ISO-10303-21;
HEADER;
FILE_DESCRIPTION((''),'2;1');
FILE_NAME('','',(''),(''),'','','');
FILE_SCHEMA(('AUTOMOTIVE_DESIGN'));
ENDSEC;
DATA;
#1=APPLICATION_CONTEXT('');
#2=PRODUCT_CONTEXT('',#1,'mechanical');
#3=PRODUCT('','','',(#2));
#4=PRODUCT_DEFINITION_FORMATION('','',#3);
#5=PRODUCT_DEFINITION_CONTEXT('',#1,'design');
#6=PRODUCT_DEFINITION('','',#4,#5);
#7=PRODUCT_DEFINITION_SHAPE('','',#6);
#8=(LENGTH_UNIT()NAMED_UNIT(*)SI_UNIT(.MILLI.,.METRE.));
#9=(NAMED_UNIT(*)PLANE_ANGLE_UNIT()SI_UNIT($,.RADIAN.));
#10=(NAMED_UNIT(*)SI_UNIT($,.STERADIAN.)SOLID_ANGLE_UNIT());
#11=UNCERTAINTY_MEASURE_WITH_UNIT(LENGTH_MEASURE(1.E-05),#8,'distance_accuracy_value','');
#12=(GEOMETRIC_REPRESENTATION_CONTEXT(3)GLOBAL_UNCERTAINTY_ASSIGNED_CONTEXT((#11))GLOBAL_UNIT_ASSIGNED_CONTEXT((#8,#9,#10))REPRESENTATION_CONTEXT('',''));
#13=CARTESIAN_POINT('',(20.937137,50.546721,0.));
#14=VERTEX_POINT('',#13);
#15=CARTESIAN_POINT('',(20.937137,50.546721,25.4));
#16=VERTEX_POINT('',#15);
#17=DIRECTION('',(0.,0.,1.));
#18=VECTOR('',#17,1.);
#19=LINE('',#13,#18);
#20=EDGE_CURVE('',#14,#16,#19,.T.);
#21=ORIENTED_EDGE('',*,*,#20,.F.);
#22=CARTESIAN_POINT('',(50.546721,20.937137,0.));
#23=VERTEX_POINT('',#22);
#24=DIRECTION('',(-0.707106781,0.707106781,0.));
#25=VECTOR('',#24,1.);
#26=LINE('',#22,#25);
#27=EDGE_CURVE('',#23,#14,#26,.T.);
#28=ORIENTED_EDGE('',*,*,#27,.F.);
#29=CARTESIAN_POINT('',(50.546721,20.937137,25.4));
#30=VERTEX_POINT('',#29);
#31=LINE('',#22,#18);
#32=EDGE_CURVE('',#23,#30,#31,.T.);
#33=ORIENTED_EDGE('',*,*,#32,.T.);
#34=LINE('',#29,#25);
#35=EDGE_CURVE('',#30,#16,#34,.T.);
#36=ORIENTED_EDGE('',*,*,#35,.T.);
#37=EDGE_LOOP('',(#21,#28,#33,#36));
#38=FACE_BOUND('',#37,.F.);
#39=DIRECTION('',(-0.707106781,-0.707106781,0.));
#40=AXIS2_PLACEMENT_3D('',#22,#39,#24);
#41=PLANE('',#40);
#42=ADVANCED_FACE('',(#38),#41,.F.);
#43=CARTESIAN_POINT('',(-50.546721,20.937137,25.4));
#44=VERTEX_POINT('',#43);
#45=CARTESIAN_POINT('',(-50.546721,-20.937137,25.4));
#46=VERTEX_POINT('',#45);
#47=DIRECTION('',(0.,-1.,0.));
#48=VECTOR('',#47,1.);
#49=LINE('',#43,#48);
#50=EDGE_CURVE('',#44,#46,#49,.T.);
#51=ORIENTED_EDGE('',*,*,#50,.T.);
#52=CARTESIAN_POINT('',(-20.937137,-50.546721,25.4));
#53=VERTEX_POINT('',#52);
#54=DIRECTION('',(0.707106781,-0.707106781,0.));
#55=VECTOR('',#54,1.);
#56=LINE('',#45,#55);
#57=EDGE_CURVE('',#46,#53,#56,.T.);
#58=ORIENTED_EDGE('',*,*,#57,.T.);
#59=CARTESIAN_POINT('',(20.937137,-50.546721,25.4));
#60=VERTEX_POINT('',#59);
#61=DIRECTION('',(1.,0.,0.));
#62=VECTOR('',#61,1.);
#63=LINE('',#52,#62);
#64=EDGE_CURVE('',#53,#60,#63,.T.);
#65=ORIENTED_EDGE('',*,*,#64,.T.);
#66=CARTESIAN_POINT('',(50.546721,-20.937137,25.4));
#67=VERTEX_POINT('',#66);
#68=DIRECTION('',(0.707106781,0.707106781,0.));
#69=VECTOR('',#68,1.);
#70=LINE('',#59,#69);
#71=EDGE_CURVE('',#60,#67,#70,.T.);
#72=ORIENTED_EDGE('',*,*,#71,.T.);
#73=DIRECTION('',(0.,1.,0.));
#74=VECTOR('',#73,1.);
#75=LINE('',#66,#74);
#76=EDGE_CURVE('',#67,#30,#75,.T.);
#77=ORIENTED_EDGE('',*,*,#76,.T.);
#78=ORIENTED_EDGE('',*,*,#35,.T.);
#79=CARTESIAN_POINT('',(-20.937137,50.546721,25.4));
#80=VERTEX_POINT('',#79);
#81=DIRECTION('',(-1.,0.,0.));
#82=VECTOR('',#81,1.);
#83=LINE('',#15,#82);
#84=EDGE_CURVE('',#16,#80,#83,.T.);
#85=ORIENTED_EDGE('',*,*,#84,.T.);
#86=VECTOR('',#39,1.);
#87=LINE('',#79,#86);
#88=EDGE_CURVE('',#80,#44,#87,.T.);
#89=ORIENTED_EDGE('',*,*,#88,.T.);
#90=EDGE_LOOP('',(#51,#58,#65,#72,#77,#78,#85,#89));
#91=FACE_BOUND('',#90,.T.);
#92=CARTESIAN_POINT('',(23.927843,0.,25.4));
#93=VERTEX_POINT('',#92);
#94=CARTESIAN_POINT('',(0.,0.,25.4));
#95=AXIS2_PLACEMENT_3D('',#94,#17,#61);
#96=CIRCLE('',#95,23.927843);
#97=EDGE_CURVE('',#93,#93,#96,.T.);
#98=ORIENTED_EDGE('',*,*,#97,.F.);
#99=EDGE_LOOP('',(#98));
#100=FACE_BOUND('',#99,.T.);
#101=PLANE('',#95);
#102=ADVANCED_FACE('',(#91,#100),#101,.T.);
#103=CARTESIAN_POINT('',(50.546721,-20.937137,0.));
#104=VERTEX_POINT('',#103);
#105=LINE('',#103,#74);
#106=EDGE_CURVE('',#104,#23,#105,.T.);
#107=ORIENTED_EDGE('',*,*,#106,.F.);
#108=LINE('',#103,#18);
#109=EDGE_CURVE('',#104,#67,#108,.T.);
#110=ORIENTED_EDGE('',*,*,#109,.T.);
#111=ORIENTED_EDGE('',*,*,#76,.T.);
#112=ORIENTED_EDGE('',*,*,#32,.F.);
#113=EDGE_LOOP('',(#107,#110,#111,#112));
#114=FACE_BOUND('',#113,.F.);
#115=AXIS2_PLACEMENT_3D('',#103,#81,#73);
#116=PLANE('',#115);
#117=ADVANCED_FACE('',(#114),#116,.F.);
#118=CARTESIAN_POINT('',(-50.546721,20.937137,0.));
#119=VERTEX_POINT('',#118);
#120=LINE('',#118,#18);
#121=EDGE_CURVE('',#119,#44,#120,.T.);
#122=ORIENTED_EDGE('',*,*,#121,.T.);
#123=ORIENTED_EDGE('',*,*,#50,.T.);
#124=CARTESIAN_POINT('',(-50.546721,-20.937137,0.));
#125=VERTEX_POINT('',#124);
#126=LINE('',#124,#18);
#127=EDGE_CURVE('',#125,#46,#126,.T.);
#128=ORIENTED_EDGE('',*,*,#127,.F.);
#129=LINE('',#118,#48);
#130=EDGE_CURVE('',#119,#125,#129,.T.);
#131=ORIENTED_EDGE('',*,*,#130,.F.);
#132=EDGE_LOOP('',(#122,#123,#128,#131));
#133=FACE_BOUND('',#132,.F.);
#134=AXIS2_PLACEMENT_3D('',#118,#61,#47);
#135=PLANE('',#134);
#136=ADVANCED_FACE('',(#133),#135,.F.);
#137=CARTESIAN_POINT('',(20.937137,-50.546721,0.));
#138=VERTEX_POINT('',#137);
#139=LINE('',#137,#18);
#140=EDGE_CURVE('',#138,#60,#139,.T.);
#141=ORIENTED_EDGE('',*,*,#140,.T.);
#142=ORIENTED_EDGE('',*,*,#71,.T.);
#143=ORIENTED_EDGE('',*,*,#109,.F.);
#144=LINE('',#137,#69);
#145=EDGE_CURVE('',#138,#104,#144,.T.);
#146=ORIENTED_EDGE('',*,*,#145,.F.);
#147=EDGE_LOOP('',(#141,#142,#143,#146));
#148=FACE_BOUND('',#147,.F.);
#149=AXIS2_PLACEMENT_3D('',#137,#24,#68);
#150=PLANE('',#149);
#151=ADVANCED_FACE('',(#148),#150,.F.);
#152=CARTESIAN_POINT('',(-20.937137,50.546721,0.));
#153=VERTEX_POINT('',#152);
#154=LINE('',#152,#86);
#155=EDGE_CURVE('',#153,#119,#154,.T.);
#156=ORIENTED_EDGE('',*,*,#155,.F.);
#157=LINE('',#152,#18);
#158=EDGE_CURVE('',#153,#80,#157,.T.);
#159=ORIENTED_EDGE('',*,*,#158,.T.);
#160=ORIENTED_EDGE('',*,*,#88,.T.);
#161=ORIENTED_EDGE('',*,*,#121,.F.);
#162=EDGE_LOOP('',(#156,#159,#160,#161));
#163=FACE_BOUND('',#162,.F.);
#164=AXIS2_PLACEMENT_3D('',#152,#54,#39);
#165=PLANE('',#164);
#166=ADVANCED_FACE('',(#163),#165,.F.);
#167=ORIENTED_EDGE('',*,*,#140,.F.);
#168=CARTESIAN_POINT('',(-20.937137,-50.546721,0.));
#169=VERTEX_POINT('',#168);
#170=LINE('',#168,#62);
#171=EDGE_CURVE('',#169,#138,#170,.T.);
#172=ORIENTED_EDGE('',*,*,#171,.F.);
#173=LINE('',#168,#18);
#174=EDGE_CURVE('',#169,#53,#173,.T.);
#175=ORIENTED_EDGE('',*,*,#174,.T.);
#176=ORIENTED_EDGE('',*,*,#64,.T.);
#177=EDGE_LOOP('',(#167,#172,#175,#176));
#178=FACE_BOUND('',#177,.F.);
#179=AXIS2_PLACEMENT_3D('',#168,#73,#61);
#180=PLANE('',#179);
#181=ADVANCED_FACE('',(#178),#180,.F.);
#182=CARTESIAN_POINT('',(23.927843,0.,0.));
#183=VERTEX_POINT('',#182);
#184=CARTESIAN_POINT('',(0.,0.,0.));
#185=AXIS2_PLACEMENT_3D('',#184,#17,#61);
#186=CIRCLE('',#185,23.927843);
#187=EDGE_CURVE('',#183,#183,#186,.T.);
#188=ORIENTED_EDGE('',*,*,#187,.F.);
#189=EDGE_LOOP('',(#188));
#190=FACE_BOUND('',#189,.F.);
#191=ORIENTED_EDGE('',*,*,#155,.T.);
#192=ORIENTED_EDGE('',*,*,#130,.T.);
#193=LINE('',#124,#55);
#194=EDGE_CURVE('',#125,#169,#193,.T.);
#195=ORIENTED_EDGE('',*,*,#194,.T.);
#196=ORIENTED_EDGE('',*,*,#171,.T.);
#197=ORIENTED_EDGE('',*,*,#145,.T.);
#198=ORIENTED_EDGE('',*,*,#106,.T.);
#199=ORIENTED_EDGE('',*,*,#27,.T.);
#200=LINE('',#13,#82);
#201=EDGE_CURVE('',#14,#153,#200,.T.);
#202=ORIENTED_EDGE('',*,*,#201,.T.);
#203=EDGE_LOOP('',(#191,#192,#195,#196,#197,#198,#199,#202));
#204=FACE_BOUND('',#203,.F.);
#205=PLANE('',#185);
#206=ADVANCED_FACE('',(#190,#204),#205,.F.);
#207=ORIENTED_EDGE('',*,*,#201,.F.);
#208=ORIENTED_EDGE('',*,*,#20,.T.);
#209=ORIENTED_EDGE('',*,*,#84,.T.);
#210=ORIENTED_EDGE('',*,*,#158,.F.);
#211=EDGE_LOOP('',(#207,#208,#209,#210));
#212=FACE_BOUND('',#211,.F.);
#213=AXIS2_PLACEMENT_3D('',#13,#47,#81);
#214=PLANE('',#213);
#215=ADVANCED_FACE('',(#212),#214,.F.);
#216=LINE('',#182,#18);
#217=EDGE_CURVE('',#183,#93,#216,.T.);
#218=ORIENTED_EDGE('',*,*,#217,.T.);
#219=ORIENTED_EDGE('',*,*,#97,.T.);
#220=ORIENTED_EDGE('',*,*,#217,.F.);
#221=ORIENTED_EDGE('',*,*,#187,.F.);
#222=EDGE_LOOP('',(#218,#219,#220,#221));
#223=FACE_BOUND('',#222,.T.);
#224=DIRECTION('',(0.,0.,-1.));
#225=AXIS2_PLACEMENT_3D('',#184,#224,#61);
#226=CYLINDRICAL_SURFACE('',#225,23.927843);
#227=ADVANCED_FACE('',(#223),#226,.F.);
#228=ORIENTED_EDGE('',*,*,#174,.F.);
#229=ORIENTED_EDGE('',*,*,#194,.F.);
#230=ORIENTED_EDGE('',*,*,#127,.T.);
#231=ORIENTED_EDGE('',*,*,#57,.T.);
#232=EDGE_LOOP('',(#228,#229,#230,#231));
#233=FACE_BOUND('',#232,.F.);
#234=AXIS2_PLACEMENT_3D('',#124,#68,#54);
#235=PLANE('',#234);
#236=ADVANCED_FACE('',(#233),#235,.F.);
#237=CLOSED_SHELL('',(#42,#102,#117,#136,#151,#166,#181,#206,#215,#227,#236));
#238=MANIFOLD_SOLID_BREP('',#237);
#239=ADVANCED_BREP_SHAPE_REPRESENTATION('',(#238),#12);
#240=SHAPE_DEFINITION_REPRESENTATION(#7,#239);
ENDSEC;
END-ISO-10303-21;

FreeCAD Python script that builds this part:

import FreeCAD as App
import Part
import Sketcher
Q = App.Units.Quantity


def add_polygon(sketch, points):
    """Adds a closed chain of lines whose ends are joined by coincident constraints."""
    first, n = sketch.GeometryCount, len(points)
    for a, b in zip(points, points[1:] + points[:1]):
        sketch.addGeometry(Part.LineSegment(App.Vector(*a, 0), App.Vector(*b, 0)), False)
    for i in range(n):
        sketch.addConstraint(Sketcher.Constraint("Coincident", first + i, 2, first + (i + 1) % n, 1))

doc = App.newDocument("Part")
body = doc.addObject("PartDesign::Body", "Body")

sketch1 = body.newObject("Sketcher::SketchObject", "Sketch")
sketch1.AttachmentSupport = (doc.getObject("XY_Plane"), [""])
sketch1.MapMode = "FlatFace"
add_polygon(sketch1, [(-50.546721, 20.937137), (-50.546721, -20.937137), (-20.937137, -50.546721), (20.937137, -50.546721), (50.546721, -20.937137), (50.546721, 20.937137), (20.937137, 50.546721), (-20.937137, 50.546721)])
sketch1.addGeometry(Part.Circle(App.Vector(0, 0, 0), App.Vector(0, 0, 1), 23.927843), False)
sketch1.addConstraint([
    Sketcher.Constraint("Vertical", 0),
    Sketcher.Constraint("Horizontal", 2),
    Sketcher.Constraint("Vertical", 4),
    Sketcher.Constraint("Horizontal", 6),
    Sketcher.Constraint("Coincident", 8, 3, -1, 1),
    Sketcher.Constraint("Symmetric", 0, 2, 4, 2, -1, 1),
    Sketcher.Constraint("Symmetric", 1, 2, 5, 2, -1, 1),
    Sketcher.Constraint("Perpendicular", 1, 3),
    Sketcher.Constraint("Perpendicular", 5, 7),
    Sketcher.Constraint("Horizontal", 0, 2, 3, 2),
    Sketcher.Constraint("Horizontal", 4, 2, 7, 2),
    Sketcher.Constraint("Vertical", 2, 2, 5, 2),
    Sketcher.Constraint("Equal", 6, 0),
    Sketcher.Constraint("Diameter", 8, 47.855686),
    Sketcher.Constraint("DistanceX", 2, 1, 2, 2, 41.874274),
    Sketcher.Constraint("DistanceX", 0, 2, -1, 1, 50.546721),
])
pad1 = body.newObject("PartDesign::Pad", "Pad")
pad1.Profile = sketch1
pad1.Length = Q("1 in")

doc.recompute()
